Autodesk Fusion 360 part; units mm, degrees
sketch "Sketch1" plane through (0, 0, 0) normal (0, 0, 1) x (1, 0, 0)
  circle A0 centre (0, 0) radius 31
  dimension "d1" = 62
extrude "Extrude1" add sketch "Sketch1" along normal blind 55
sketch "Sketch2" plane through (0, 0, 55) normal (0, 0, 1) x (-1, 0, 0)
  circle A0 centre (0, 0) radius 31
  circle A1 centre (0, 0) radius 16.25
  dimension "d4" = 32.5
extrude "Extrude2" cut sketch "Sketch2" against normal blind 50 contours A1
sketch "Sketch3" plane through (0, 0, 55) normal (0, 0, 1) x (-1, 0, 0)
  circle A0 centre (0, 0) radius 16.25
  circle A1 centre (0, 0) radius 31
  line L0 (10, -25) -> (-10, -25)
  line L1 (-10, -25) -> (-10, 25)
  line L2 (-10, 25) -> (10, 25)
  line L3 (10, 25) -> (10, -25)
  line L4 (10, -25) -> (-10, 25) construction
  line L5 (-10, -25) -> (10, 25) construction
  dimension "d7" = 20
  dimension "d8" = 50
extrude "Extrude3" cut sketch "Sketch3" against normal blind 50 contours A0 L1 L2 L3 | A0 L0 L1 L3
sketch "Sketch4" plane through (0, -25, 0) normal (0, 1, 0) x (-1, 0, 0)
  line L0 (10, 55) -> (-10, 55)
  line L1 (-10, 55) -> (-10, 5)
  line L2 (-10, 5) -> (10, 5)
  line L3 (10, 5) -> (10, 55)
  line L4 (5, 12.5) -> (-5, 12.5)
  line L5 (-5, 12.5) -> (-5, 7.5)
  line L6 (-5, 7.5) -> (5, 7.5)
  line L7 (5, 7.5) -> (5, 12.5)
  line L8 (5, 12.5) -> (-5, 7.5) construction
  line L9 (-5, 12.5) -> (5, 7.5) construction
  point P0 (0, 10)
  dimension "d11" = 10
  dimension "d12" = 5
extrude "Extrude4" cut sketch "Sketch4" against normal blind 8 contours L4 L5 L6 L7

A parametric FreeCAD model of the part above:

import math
import FreeCAD as App
import Part
import Sketcher
from FreeCAD import Vector
Q = App.Units.Quantity

doc = App.newDocument("Part")
params = doc.addObject("Spreadsheet::Sheet", "Params")
for row, (alias, value) in enumerate([
    ("sketch1_diameter", "62 mm"),
    ("pad1_length", "55 mm"),
    ("sketch2_diameter", "32.5 mm"),
    ("pocket1_length", "50 mm"),
    ("sketch3_width", "20 mm"),
    ("sketch3_radius", "16.25 mm"),
    ("pocket2_length", "50 mm"),
    ("sketch4_width", "10 mm"),
    ("sketch4_height", "5 mm"),
    ("pocket3_length", "8 mm"),
], start=1):
    params.set(f"A{row}", alias)
    params.set(f"B{row}", "=" + value)
    params.setAlias(f"B{row}", alias)

body = doc.addObject("PartDesign::Body", "Body")

# Sketch on XY plane
sketch1 = doc.addObject("Sketcher::SketchObject", "Sketch")
body.addObject(sketch1)
sketch1.AttachmentSupport = (doc.XY_Plane, [""])
sketch1.MapMode = "FlatFace"
sketch1.addGeometry(Part.Circle(Vector(0, 0, 0), Vector(0, 0, 1), 31), False)
sketch1.addConstraint([
    Sketcher.Constraint("Coincident", 0, 3, -1, 1),
    Sketcher.Constraint("Diameter", 0, Q("62 mm")),
])
sketch1.setExpression("Constraints[1]", "Params.sketch1_diameter")
pad1 = doc.addObject("PartDesign::Pad", "Pad")
body.addObject(pad1)
pad1.Profile = sketch1
pad1.setExpression("Length", "Params.pad1_length")

# Sketch on XY plane
sketch2 = doc.addObject("Sketcher::SketchObject", "Sketch001")
body.addObject(sketch2)
sketch2.AttachmentSupport = (doc.XY_Plane, [""])
sketch2.MapMode = "FlatFace"
sketch2.AttachmentOffset = App.Placement(Vector(0, 0, 55), App.Rotation())
sketch2.addGeometry(Part.Circle(Vector(0, 0, 0), Vector(0, 0, 1), 16), False)
sketch2.addConstraint([
    Sketcher.Constraint("Coincident", 0, 3, -1, 1),
    Sketcher.Constraint("Diameter", 0, Q("32.5 mm")),
])
sketch2.setExpression("Constraints[1]", "Params.sketch2_diameter")
pocket1 = doc.addObject("PartDesign::Pocket", "Pocket")
body.addObject(pocket1)
pocket1.Profile = sketch2
pocket1.setExpression("Length", "Params.pocket1_length")

# Sketch on XY plane
sketch3 = doc.addObject("Sketcher::SketchObject", "Sketch002")
body.addObject(sketch3)
sketch3.AttachmentSupport = (doc.XY_Plane, [""])
sketch3.MapMode = "FlatFace"
sketch3.AttachmentOffset = App.Placement(Vector(0, 0, 55), App.Rotation())
sketch3.addGeometry([
    Part.ArcOfCircle(Part.Circle(Vector(0, 0, 0), Vector(0, 0, 1), 16), math.radians(-128), math.radians(-52)),  # 0
    Part.LineSegment(Vector(-10, -13, 0), Vector(-10, -25, 0)),  # 1
    Part.LineSegment(Vector(-10, -25, 0), Vector(10, -25, 0)),  # 2
    Part.LineSegment(Vector(10, -25, 0), Vector(10, -13, 0)),  # 3
    Part.LineSegment(Vector(-10, 25, 0), Vector(-10, 13, 0)),  # 4
    Part.ArcOfCircle(Part.Circle(Vector(0, 0, 0), Vector(0, 0, 1), 16), math.radians(52), math.radians(128)),  # 5
    Part.LineSegment(Vector(10, 13, 0), Vector(10, 25, 0)),  # 6
    Part.LineSegment(Vector(10, 25, 0), Vector(-10, 25, 0)),  # 7
], False)
sketch3.addConstraint([
    Sketcher.Constraint("Coincident", 0, 1, 1, 1),
    Sketcher.Constraint("Coincident", 1, 2, 2, 1),
    Sketcher.Constraint("Coincident", 2, 2, 3, 1),
    Sketcher.Constraint("Coincident", 3, 2, 0, 2),
    Sketcher.Constraint("Coincident", 4, 2, 5, 2),
    Sketcher.Constraint("Coincident", 5, 1, 6, 1),
    Sketcher.Constraint("Coincident", 6, 2, 7, 1),
    Sketcher.Constraint("Coincident", 7, 2, 4, 1),
    Sketcher.Constraint("Vertical", 1),
    Sketcher.Constraint("Horizontal", 2),
    Sketcher.Constraint("Vertical", 3),
    Sketcher.Constraint("Vertical", 4),
    Sketcher.Constraint("Vertical", 6),
    Sketcher.Constraint("Horizontal", 7),
    Sketcher.Constraint("Coincident", 0, 3, -1, 1),
    Sketcher.Constraint("Coincident", 5, 3, -1, 1),
    Sketcher.Constraint("Equal", 0, 5),
    Sketcher.Constraint("Symmetric", 1, 2, 6, 2, -1, 1),
    Sketcher.Constraint("Horizontal", 0, 1, 3, 2),
    Sketcher.Constraint("Horizontal", 4, 2, 5, 1),
    Sketcher.Constraint("DistanceX", 2, 1, 2, 2, Q("20 mm")),
    Sketcher.Constraint("Radius", 0, Q("16.25 mm")),
    Sketcher.Constraint("DistanceY", 1, 2, -1, 1, Q("25 mm")),
])
sketch3.setExpression("Constraints[20]", "Params.sketch3_width")
sketch3.setExpression("Constraints[21]", "Params.sketch3_radius")
pocket2 = doc.addObject("PartDesign::Pocket", "Pocket001")
body.addObject(pocket2)
pocket2.Profile = sketch3
pocket2.setExpression("Length", "Params.pocket2_length")

# Sketch on XZ plane
sketch4 = doc.addObject("Sketcher::SketchObject", "Sketch003")
body.addObject(sketch4)
sketch4.AttachmentSupport = (doc.XZ_Plane, [""])
sketch4.MapMode = "FlatFace"
sketch4.AttachmentOffset = App.Placement(Vector(0, 0, 25), App.Rotation())
sketch4.addGeometry([
    Part.LineSegment(Vector(-5, 8, 0), Vector(-5, 12, 0)),
    Part.LineSegment(Vector(-5, 12, 0), Vector(5, 12, 0)),
    Part.LineSegment(Vector(5, 12, 0), Vector(5, 8, 0)),
    Part.LineSegment(Vector(5, 8, 0), Vector(-5, 8, 0)),
], False)
sketch4.addConstraint([
    Sketcher.Constraint("Coincident", 0, 2, 1, 1),
    Sketcher.Constraint("Coincident", 1, 2, 2, 1),
    Sketcher.Constraint("Coincident", 2, 2, 3, 1),
    Sketcher.Constraint("Coincident", 3, 2, 0, 1),
    Sketcher.Constraint("Vertical", 0),
    Sketcher.Constraint("Horizontal", 1),
    Sketcher.Constraint("Vertical", 2),
    Sketcher.Constraint("Horizontal", 3),
    Sketcher.Constraint("DistanceX", 1, 1, 1, 2, Q("10 mm")),
    Sketcher.Constraint("DistanceY", 0, 1, 0, 2, Q("5 mm")),
    Sketcher.Constraint("DistanceX", 0, 2, -1, 1, Q("5 mm")),
    Sketcher.Constraint("DistanceY", -1, 1, 0, 2, Q("12.5 mm")),
])
sketch4.setExpression("Constraints[8]", "Params.sketch4_width")
sketch4.setExpression("Constraints[9]", "Params.sketch4_height")
pocket3 = doc.addObject("PartDesign::Pocket", "Pocket002")
body.addObject(pocket3)
pocket3.Profile = sketch4
pocket3.setExpression("Length", "Params.pocket3_length")
pocket3.Reversed = True

doc.recompute()
